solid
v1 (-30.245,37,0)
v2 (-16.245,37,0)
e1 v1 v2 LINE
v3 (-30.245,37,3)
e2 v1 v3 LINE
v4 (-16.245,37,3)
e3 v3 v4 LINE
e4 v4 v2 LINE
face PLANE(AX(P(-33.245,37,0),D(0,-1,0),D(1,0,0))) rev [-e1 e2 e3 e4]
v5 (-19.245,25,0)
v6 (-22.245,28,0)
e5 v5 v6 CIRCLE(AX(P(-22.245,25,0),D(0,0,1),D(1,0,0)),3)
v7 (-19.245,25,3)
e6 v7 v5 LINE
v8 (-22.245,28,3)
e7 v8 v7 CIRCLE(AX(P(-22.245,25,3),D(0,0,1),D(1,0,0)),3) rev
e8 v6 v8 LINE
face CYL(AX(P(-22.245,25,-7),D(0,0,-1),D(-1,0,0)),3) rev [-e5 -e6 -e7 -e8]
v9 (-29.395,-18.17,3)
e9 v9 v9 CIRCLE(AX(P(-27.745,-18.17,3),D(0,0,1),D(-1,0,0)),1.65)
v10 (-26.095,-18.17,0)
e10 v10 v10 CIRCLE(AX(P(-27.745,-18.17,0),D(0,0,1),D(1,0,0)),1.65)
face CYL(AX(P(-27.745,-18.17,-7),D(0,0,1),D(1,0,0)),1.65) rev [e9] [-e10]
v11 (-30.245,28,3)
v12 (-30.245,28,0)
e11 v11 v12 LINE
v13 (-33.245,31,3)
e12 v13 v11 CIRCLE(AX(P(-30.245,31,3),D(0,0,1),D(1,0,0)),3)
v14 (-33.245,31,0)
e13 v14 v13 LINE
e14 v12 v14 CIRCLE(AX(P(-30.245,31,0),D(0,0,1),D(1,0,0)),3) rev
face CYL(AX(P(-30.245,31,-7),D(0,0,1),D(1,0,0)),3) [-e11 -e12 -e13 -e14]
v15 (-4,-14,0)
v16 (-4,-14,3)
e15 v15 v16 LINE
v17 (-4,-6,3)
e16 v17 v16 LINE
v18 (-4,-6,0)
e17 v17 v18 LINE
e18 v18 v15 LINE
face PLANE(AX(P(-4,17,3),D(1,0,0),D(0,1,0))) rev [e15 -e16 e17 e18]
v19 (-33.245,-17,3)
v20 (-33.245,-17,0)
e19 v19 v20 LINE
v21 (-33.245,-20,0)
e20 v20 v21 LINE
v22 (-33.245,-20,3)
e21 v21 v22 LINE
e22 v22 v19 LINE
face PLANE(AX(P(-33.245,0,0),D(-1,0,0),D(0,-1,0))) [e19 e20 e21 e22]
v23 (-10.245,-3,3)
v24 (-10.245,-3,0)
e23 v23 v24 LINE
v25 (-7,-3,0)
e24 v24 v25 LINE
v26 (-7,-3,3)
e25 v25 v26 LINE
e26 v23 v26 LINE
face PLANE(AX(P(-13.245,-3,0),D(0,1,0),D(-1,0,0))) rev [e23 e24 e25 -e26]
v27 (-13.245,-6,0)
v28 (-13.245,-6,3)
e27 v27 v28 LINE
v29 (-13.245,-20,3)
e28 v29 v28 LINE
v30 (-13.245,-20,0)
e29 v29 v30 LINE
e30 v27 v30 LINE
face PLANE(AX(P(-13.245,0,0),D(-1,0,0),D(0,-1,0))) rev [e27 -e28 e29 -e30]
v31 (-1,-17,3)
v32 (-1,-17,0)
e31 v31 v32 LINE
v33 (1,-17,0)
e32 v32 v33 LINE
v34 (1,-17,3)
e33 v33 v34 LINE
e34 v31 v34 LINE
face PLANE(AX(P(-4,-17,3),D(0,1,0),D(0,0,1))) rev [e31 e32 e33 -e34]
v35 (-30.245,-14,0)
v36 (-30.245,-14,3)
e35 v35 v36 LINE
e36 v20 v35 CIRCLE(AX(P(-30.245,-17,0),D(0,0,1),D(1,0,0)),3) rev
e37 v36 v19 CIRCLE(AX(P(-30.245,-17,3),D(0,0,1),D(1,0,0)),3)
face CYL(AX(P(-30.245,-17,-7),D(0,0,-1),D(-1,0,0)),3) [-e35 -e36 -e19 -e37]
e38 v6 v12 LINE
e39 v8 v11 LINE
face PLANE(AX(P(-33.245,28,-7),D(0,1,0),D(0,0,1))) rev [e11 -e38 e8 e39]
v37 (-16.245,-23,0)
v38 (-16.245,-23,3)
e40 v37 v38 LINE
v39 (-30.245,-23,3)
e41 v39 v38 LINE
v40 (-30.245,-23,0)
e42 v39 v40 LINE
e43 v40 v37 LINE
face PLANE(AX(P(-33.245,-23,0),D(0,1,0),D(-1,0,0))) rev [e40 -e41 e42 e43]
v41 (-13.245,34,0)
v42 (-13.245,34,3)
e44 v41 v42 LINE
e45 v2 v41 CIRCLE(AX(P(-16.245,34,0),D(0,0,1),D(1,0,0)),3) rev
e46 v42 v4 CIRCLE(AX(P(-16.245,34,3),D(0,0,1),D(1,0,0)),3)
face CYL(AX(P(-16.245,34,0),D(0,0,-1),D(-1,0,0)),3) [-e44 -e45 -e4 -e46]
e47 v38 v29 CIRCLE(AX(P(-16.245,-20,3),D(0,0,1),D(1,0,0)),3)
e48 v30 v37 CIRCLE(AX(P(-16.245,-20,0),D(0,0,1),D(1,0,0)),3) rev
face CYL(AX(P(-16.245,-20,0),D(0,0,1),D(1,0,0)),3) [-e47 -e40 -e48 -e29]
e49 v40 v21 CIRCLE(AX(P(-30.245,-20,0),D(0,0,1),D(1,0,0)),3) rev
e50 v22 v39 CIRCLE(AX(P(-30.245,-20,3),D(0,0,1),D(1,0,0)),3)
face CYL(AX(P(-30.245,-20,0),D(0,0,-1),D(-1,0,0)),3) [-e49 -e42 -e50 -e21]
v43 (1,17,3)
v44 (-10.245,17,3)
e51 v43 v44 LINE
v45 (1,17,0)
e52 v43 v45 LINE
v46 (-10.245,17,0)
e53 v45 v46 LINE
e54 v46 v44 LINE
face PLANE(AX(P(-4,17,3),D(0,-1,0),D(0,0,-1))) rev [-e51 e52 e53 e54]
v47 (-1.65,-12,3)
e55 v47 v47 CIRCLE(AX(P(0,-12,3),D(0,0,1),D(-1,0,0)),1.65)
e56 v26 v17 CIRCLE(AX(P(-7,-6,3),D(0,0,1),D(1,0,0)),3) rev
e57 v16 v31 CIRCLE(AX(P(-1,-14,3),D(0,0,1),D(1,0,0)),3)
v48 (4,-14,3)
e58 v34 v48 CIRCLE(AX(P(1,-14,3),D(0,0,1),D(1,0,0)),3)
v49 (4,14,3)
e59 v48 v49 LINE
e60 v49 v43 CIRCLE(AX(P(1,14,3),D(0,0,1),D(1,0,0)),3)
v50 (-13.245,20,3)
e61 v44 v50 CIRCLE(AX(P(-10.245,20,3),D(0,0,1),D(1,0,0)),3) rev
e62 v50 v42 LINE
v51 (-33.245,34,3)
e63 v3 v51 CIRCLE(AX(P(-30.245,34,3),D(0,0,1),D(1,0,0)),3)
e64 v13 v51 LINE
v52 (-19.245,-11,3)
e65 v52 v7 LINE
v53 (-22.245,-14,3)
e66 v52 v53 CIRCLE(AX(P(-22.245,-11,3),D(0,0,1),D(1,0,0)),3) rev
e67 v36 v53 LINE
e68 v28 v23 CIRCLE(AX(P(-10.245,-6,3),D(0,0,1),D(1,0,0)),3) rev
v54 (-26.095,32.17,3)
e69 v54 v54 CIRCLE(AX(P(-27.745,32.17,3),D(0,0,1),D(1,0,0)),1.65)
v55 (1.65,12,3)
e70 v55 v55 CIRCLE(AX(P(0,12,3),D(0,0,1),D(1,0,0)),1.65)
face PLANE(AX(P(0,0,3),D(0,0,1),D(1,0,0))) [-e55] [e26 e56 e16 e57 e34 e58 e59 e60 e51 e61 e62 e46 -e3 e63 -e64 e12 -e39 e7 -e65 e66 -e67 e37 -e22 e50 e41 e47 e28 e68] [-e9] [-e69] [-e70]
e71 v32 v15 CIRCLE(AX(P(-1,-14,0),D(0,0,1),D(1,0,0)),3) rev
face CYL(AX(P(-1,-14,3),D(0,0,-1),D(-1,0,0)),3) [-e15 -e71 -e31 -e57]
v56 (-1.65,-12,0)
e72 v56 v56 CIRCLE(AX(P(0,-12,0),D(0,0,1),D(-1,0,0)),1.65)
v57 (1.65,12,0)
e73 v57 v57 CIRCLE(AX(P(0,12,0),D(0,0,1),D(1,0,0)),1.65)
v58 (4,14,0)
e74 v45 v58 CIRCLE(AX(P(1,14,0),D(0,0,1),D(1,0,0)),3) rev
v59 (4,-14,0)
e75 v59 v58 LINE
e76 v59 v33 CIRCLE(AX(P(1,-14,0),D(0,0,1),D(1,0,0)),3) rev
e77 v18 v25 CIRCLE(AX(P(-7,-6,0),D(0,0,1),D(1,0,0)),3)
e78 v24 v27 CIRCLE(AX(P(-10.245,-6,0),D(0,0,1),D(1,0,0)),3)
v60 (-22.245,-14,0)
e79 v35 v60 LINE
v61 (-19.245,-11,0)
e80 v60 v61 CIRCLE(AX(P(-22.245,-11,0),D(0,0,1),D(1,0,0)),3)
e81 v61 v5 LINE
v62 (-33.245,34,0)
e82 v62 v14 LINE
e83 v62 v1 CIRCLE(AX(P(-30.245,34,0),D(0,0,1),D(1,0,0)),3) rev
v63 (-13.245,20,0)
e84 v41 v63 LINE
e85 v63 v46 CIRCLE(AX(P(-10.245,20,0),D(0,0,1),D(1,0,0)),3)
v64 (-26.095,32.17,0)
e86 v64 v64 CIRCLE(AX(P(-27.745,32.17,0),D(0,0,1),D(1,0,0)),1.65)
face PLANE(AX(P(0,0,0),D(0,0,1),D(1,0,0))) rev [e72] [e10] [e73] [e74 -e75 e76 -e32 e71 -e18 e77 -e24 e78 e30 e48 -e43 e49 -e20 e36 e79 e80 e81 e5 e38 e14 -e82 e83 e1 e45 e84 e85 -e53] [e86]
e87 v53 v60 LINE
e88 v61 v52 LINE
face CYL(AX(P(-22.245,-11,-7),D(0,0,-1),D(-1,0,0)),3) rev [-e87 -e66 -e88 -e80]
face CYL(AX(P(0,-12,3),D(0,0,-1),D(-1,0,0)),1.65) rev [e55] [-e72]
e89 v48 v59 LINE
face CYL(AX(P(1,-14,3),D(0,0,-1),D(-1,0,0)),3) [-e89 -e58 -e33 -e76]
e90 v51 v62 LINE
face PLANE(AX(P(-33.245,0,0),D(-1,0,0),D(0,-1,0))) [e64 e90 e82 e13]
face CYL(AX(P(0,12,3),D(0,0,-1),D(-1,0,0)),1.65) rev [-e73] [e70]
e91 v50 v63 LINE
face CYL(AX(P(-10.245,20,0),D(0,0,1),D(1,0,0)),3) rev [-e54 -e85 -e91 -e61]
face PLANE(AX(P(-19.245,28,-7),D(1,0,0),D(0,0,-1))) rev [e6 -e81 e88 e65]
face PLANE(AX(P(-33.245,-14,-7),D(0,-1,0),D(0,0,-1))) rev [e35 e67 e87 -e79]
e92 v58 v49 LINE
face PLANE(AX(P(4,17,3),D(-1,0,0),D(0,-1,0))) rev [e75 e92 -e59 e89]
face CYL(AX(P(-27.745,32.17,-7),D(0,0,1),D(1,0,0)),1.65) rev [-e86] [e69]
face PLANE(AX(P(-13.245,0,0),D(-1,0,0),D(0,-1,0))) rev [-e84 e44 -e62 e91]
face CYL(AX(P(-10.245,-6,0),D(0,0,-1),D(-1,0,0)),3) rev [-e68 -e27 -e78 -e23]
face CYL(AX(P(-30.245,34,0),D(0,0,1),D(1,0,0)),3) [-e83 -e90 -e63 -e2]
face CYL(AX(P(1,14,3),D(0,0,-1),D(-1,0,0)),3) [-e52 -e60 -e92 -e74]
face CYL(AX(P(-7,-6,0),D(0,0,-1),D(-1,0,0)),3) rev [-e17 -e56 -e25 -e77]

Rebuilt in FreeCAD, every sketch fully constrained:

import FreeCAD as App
import Part
import Sketcher

V = App.Vector


def edges_at(feature, points):
    """Names of the edges that pass closest to the given points."""
    edges = feature.Shape.Edges
    near = lambda p: min(range(len(edges)), key=lambda i: edges[i].distToShape(Part.Vertex(*p))[0])
    return sorted({f"Edge{near(p) + 1}" for p in points})


def add_polygon(sketch, points):
    """Adds a closed chain of lines whose ends are joined by coincident constraints."""
    first, n = sketch.GeometryCount, len(points)
    for a, b in zip(points, points[1:] + points[:1]):
        sketch.addGeometry(Part.LineSegment(App.Vector(*a, 0), App.Vector(*b, 0)), False)
    for i in range(n):
        sketch.addConstraint(Sketcher.Constraint("Coincident", first + i, 2, first + (i + 1) % n, 1))

doc = App.newDocument("Part")
body = doc.addObject("PartDesign::Body", "Body")

# Sketch on XY plane
sketch1 = body.newObject("Sketcher::SketchObject", "Sketch")
sketch1.AttachmentSupport = (doc.getObject("XY_Plane"), [""])
sketch1.MapMode = "FlatFace"
add_polygon(sketch1, [(-4, 17), (-4, -17), (4, -17), (4, 17)])  # lines 0-3
sketch1.addGeometry(Part.Circle(V(0, -12, 0), V(0, 0, 1), 1.6), False)  # 4
sketch1.addGeometry(Part.Circle(V(0, 12, 0), V(0, 0, 1), 1.6), False)  # 5
sketch1.addConstraint([
    Sketcher.Constraint("Vertical", 0),
    Sketcher.Constraint("Horizontal", 1),
    Sketcher.Constraint("Vertical", 2),
    Sketcher.Constraint("Horizontal", 3),
    Sketcher.Constraint("Equal", 4, 5),
    Sketcher.Constraint("Symmetric", 4, 3, 5, 3, -1, 1),
    Sketcher.Constraint("Symmetric", 0, 2, 2, 2, -1, 1),
    Sketcher.Constraint("PointOnObject", 4, 3, -2),
    Sketcher.Constraint("Diameter", 4, 3.3),
    Sketcher.Constraint("DistanceX", 1, 1, 1, 2, 8.0),
    Sketcher.Constraint("DistanceY", 0, 2, 0, 1, 34.0),
    Sketcher.Constraint("DistanceY", 4, 3, -1, 1, 12.0),
])
pad1 = body.newObject("PartDesign::Pad", "Pad")
pad1.Profile = sketch1
pad1.Length = 3

# Sketch on YZ plane
sketch2 = body.newObject("Sketcher::SketchObject", "Sketch001")
sketch2.AttachmentSupport = (doc.getObject("YZ_Plane"), [""])
sketch2.MapMode = "FlatFace"
sketch2.AttachmentOffset = App.Placement(V(0, 0, -4), App.Rotation())
add_polygon(sketch2, [(17, 0), (-3, 0), (-3, 3), (17, 3)])  # lines 0-3
sketch2.addConstraint([
    Sketcher.Constraint("Horizontal", 0),
    Sketcher.Constraint("Vertical", 1),
    Sketcher.Constraint("Horizontal", 2),
    Sketcher.Constraint("Vertical", 3),
    Sketcher.Constraint("PointOnObject", 0, 2, -1),
    Sketcher.Constraint("DistanceX", 0, 2, 0, 1, 20.0),
    Sketcher.Constraint("DistanceY", 1, 1, 1, 2, 3.0),
    Sketcher.Constraint("DistanceX", 0, 2, -1, 1, 3.0),
])
pad2 = body.newObject("PartDesign::Pad", "Pad001")
pad2.Profile = sketch2
pad2.Length = 9.245
pad2.Reversed = True

# Sketch on YZ plane
sketch3 = body.newObject("Sketcher::SketchObject", "Sketch002")
sketch3.AttachmentSupport = (doc.getObject("YZ_Plane"), [""])
sketch3.MapMode = "FlatFace"
sketch3.AttachmentOffset = App.Placement(V(0, 0, -13.245), App.Rotation())
add_polygon(sketch3, [(37, 0), (-23, 0), (-23, 3), (37, 3)])  # lines 0-3
sketch3.addConstraint([
    Sketcher.Constraint("Horizontal", 0),
    Sketcher.Constraint("Vertical", 1),
    Sketcher.Constraint("Horizontal", 2),
    Sketcher.Constraint("Vertical", 3),
    Sketcher.Constraint("PointOnObject", 0, 2, -1),
    Sketcher.Constraint("DistanceX", 0, 2, 0, 1, 60.0),
    Sketcher.Constraint("DistanceY", 1, 1, 1, 2, 3.0),
    Sketcher.Constraint("DistanceX", 0, 2, -1, 1, 23.0),
])
pad3 = body.newObject("PartDesign::Pad", "Pad002")
pad3.Profile = sketch3
pad3.Length = 20
pad3.Reversed = True

# Sketch on XY plane
sketch4 = body.newObject("Sketcher::SketchObject", "Sketch003")
sketch4.AttachmentSupport = (doc.getObject("XY_Plane"), [""])
sketch4.MapMode = "FlatFace"
sketch4.AttachmentOffset = App.Placement(V(0, 0, 3), App.Rotation())
add_polygon(sketch4, [(-33, 28), (-33, -14), (-19, -14), (-19, 28)])  # lines 0-3
sketch4.addConstraint([
    Sketcher.Constraint("Vertical", 0),
    Sketcher.Constraint("Horizontal", 1),
    Sketcher.Constraint("Vertical", 2),
    Sketcher.Constraint("Horizontal", 3),
    Sketcher.Constraint("DistanceX", 1, 1, 1, 2, 14.0),
    Sketcher.Constraint("DistanceY", 0, 2, 0, 1, 42.0),
    Sketcher.Constraint("DistanceY", 0, 2, -1, 1, 14.0),
    Sketcher.Constraint("DistanceX", 0, 2, -1, 1, 33.245),
])
pocket1 = body.newObject("PartDesign::Pocket", "Pocket")
pocket1.Profile = sketch4
pocket1.Length = 10

# Sketch on XY plane
sketch5 = body.newObject("Sketcher::SketchObject", "Sketch004")
sketch5.AttachmentSupport = (doc.getObject("XY_Plane"), [""])
sketch5.MapMode = "FlatFace"
sketch5.AttachmentOffset = App.Placement(V(0, 0, 3), App.Rotation())
sketch5.addGeometry([
    Part.Circle(V(-27.7, 32.2, 0), V(0, 0, 1), 1.6),
    Part.Circle(V(-27.7, -18.2, 0), V(0, 0, 1), 1.6),
], False)
sketch5.addConstraint([
    Sketcher.Constraint("Equal", 0, 1),
    Sketcher.Constraint("Vertical", 0, 3, 1, 3),
    Sketcher.Constraint("Diameter", 0, 3.3),
    Sketcher.Constraint("DistanceY", -1, 1, 0, 3, 32.17),
    Sketcher.Constraint("DistanceY", 1, 3, -1, 1, 18.17),
    Sketcher.Constraint("DistanceX", 0, 3, -1, 1, 27.745),
])
pocket2 = body.newObject("PartDesign::Pocket", "Pocket001")
pocket2.Profile = sketch5
pocket2.Length = 10
doc.recompute()

fillet = body.newObject("PartDesign::Fillet", "Fillet")
fillet.Base = (pocket2, edges_at(pocket2, [
    (-4, -3, 1.5),
    (-13.245, -3, 1.5),
    (-13.245, 17, 1.5),
    (-13.245, 37, 1.5),
    (-13.245, -23, 1.5),
    (-33.245, 37, 1.5),
    (-33.245, -23, 1.5),
    (-33.245, -14, 1.5),
    (-33.245, 28, 1.5),
    (-19.245, 28, 1.5),
    (-19.245, -14, 1.5),
    (4, -17, 1.5),
    (-4, -17, 1.5),
    (4, 17, 1.5),
]))
fillet.Radius = 3

doc.recompute()
